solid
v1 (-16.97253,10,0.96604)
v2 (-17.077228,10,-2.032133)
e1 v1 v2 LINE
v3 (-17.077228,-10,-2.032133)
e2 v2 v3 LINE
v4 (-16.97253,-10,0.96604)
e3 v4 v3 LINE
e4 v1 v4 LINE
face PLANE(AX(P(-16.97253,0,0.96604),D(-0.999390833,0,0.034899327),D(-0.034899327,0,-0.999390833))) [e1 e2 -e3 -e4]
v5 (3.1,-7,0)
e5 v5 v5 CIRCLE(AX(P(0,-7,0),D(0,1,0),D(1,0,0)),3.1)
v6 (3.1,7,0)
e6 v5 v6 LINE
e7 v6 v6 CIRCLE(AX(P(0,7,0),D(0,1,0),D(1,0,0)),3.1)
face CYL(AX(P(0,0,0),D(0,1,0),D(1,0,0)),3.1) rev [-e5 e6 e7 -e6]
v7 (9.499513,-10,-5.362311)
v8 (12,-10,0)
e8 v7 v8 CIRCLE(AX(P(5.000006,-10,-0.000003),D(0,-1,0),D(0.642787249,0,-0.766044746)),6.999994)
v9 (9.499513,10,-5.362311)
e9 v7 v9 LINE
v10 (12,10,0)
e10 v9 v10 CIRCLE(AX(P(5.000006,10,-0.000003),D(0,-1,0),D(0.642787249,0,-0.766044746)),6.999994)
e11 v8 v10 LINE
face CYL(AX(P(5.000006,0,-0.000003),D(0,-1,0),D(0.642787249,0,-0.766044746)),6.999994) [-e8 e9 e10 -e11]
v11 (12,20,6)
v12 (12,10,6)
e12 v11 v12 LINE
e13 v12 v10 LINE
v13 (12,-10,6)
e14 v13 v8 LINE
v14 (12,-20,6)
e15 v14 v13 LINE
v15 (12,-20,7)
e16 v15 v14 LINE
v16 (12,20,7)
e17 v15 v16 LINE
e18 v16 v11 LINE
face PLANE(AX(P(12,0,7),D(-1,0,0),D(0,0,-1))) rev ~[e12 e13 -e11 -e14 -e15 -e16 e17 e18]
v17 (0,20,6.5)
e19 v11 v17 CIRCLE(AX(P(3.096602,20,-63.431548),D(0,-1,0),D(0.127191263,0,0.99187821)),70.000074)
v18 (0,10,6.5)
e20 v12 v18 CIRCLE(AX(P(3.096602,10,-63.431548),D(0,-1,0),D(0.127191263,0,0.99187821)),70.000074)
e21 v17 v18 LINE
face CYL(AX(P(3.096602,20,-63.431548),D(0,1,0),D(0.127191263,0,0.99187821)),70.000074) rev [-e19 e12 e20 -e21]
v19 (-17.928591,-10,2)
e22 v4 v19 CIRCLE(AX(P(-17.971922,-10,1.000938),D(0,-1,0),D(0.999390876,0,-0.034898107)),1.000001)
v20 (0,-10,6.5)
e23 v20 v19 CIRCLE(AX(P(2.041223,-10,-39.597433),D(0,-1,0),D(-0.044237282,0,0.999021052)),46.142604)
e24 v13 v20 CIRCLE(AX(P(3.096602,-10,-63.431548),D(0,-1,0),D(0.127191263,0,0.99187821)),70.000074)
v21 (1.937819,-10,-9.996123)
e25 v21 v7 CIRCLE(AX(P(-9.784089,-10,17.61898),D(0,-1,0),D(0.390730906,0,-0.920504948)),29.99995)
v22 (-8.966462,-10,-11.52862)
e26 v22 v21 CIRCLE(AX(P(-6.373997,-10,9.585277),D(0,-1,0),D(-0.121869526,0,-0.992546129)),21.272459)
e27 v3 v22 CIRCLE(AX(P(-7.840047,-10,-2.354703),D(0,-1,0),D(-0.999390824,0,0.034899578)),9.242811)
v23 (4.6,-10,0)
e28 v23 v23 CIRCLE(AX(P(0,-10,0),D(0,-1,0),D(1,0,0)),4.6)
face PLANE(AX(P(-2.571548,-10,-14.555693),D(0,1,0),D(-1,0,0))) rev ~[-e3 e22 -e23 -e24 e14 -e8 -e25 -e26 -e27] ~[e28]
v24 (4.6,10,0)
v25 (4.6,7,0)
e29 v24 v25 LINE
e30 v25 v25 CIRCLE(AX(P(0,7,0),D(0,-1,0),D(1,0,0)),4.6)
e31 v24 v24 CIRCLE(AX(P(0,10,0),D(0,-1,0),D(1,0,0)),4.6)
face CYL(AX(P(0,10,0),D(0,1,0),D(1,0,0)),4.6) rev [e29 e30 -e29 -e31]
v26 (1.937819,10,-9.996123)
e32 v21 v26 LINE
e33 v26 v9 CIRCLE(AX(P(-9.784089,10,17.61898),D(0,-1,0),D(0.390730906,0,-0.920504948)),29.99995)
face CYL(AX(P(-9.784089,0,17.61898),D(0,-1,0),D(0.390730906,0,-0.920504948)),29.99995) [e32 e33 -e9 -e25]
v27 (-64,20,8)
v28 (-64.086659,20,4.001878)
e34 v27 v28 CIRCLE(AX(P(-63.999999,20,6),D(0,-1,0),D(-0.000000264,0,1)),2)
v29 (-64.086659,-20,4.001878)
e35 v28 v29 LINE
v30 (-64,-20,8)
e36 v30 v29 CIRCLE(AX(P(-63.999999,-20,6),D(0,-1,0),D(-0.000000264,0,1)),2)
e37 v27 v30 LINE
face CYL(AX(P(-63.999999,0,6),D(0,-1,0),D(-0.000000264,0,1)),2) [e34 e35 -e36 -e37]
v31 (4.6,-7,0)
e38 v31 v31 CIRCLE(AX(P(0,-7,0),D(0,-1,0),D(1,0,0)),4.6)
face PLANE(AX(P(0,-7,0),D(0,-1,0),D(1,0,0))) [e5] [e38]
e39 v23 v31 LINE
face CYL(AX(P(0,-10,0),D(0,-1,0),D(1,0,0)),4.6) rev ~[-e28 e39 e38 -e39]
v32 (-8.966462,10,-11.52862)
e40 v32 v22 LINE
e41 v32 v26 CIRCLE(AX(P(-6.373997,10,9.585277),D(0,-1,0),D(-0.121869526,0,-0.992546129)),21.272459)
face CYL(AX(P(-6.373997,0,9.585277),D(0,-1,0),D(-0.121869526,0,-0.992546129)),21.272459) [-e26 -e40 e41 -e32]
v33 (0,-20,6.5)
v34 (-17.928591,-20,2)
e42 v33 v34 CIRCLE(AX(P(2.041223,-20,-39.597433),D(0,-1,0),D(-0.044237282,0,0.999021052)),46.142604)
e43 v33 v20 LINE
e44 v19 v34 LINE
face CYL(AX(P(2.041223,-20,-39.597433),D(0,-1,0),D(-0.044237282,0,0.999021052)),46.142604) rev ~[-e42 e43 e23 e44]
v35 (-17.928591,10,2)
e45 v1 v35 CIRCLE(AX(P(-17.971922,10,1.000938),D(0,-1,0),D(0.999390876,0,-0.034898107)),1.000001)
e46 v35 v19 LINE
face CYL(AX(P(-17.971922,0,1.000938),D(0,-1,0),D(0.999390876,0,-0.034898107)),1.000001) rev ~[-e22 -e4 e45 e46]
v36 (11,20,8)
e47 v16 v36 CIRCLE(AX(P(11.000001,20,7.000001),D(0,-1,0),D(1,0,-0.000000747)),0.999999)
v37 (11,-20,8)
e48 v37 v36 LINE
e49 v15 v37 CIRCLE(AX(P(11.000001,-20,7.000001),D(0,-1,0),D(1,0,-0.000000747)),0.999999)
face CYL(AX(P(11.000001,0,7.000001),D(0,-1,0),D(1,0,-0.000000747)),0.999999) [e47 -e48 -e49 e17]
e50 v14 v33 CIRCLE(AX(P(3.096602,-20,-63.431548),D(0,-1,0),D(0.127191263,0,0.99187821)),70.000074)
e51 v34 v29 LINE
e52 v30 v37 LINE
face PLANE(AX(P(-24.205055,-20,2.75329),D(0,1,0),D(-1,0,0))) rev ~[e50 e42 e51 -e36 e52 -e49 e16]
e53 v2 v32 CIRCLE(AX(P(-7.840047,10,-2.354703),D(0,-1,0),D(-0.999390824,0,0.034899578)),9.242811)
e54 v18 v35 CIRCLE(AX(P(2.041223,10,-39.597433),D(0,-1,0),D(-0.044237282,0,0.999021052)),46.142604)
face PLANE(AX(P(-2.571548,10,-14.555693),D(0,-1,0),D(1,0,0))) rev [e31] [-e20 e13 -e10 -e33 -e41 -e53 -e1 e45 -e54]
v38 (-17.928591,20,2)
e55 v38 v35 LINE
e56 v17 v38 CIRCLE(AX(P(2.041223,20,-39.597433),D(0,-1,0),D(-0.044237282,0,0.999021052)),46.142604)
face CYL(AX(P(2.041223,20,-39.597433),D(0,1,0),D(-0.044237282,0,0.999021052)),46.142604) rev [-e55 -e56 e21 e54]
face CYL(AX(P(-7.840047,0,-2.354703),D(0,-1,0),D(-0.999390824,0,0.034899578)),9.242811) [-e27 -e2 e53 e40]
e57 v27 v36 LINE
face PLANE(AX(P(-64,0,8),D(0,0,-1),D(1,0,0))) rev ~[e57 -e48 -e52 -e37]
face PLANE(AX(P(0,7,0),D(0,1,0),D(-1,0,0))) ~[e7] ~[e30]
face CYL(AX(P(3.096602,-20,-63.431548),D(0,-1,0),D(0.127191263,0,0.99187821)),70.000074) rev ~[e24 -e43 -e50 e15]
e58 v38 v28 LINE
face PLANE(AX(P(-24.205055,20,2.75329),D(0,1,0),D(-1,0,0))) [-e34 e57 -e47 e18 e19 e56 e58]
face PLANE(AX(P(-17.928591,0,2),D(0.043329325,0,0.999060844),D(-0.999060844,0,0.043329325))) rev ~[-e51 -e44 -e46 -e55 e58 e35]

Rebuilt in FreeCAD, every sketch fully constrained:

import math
import FreeCAD as App
import Part
import Sketcher

doc = App.newDocument("Part")
body = doc.addObject("PartDesign::Body", "Body")

# Sketch on XZ plane
sketch1 = body.newObject("Sketcher::SketchObject", "Sketch")
sketch1.AttachmentSupport = (doc.getObject("XZ_Plane"), [""])
sketch1.MapMode = "FlatFace"
sketch1.addGeometry([
    Part.LineSegment(App.Vector(11, 8, 0), App.Vector(-64, 8, 0)),  # 0
    Part.ArcOfCircle(Part.Circle(App.Vector(-63.999999, 6, 0), App.Vector(0, 0, 1), 2), math.radians(90.000015), math.radians(267.51661)),  # 1
    Part.LineSegment(App.Vector(-64.086659, 4.001878, 0), App.Vector(-17.928591, 2, 0)),  # 2
    Part.ArcOfCircle(Part.Circle(App.Vector(-17.971922, 1.000938, 0), App.Vector(0, 0, 1), 1.000001), math.radians(-1.99992), math.radians(87.516544)),  # 3
    Part.LineSegment(App.Vector(-16.97253, 0.96604, 0), App.Vector(-17.077228, -2.032133, 0)),  # 4
    Part.ArcOfCircle(Part.Circle(App.Vector(-7.840047, -2.354703, 0), App.Vector(0, 0, 1), 9.242811), math.radians(177.999995), math.radians(263.000004)),  # 5
    Part.ArcOfCircle(Part.Circle(App.Vector(-6.373997, 9.585277, 0), App.Vector(0, 0, 1), 21.272459), math.radians(-97.000011), math.radians(-66.999987)),  # 6
    Part.ArcOfCircle(Part.Circle(App.Vector(-9.784089, 17.61898, 0), App.Vector(0, 0, 1), 29.99995), math.radians(-67.000014), math.radians(-49.999987)),  # 7
    Part.ArcOfCircle(Part.Circle(App.Vector(5.000006, -0.000003, 0), App.Vector(0, 0, 1), 6.999994), math.radians(-50.000027), math.radians(0.000021)),  # 8
    Part.LineSegment(App.Vector(12, 0, 0), App.Vector(12, 7, 0)),  # 9
    Part.ArcOfCircle(Part.Circle(App.Vector(11.000001, 7.000001, 0), App.Vector(0, 0, 1), 0.999999), math.radians(-0.000043), math.radians(90.000043)),  # 10
    Part.Circle(App.Vector(0, 0, 0), App.Vector(0, 0, 1), 3.1),  # 11
], False)
sketch1.addConstraint([
    Sketcher.Constraint("Coincident", 0, 2, 1, 1),
    Sketcher.Constraint("Coincident", 1, 2, 2, 1),
    Sketcher.Constraint("Coincident", 2, 2, 3, 2),
    Sketcher.Constraint("Coincident", 3, 1, 4, 1),
    Sketcher.Constraint("Coincident", 4, 2, 5, 1),
    Sketcher.Constraint("Coincident", 5, 2, 6, 1),
    Sketcher.Constraint("Coincident", 6, 2, 7, 1),
    Sketcher.Constraint("Coincident", 7, 2, 8, 1),
    Sketcher.Constraint("Coincident", 8, 2, 9, 1),
    Sketcher.Constraint("Coincident", 9, 2, 10, 1),
    Sketcher.Constraint("Coincident", 10, 2, 0, 1),
    Sketcher.Constraint("Horizontal", 0),
    Sketcher.Constraint("Vertical", 9),
    Sketcher.Constraint("Coincident", 11, 3, -1, 1),
    Sketcher.Constraint("PointOnObject", 8, 2, -1),
    Sketcher.Constraint("Radius", 1, 2.0),
    Sketcher.Constraint("Radius", 3, 1.000001),
    Sketcher.Constraint("Radius", 10, 0.999999),
    Sketcher.Constraint("Diameter", 11, 6.2),
    Sketcher.Constraint("DistanceX", 0, 2, 0, 1, 75.0),
    Sketcher.Constraint("DistanceY", 9, 1, 9, 2, 7.0),
    Sketcher.Constraint("Distance", 4, 3.000001),
    Sketcher.Constraint("DistanceX", 1, 3, -1, 1, 63.999999),
    Sketcher.Constraint("DistanceY", -1, 1, 1, 3, 6.0),
    Sketcher.Constraint("DistanceX", -1, 1, 10, 3, 11.000001),
    Sketcher.Constraint("DistanceX", 0, 2, -1, 1, 64.0),
    Sketcher.Constraint("DistanceY", -1, 1, 2, 2, 2.0),
    Sketcher.Constraint("Radius", 5, 9.242811),
    Sketcher.Constraint("Radius", 6, 21.272459),
    Sketcher.Constraint("Radius", 7, 29.99995),
    Sketcher.Constraint("Radius", 8, 6.999994),
    Sketcher.Constraint("DistanceX", 1, 3, 6, 3, 57.626002),
    Sketcher.Constraint("DistanceY", 5, 3, 8, 3, 2.354701),
    Sketcher.Constraint("DistanceY", 1, 2, 7, 3, 13.617102),
    Sketcher.Constraint("DistanceY", 3, 1, 3, 3, 0.034898),
    Sketcher.Constraint("DistanceX", 4, 2, 3, 1, 0.104698),
    Sketcher.Constraint("Distance", 2, 46.201458),
    Sketcher.Constraint("DistanceX", 3, 3, -1, 1, 17.971922),
    Sketcher.Constraint("DistanceY", -1, 1, 3, 3, 1.000938),
    Sketcher.Constraint("DistanceX", 5, 2, -1, 1, 8.966462),
    Sketcher.Constraint("DistanceX", -1, 1, 6, 2, 1.937819),
    Sketcher.Constraint("DistanceY", 7, 2, -1, 1, 5.362311),
])
pad1 = body.newObject("PartDesign::Pad", "Pad")
pad1.Profile = sketch1
pad1.Length = 40
pad1.Midplane = True

# Sketch on XZ plane
sketch2 = body.newObject("Sketcher::SketchObject", "Sketch001")
sketch2.AttachmentSupport = (doc.getObject("XZ_Plane"), [""])
sketch2.MapMode = "FlatFace"
sketch2.AttachmentOffset = App.Placement(App.Vector(0, 0, 20), App.Rotation())
sketch2.addGeometry([
    Part.LineSegment(App.Vector(12, -34, 0), App.Vector(12, 6, 0)),  # 0
    Part.ArcOfCircle(Part.Circle(App.Vector(3.096602, -63.431548, 0), App.Vector(0, 0, 1), 70.000074), math.radians(82.692684), math.radians(92.535428)),  # 1
    Part.ArcOfCircle(Part.Circle(App.Vector(2.041223, -39.597433, 0), App.Vector(0, 0, 1), 46.142604), math.radians(92.535437), math.radians(115.644416)),  # 2
    Part.LineSegment(App.Vector(-17.928591, 2, 0), App.Vector(-17.928591, -34, 0)),  # 3
    Part.LineSegment(App.Vector(-17.928591, -34, 0), App.Vector(12, -34, 0)),  # 4
], False)
sketch2.addConstraint([
    Sketcher.Constraint("Coincident", 0, 2, 1, 1),
    Sketcher.Constraint("Tangent", 1, 2, 2, 1),
    Sketcher.Constraint("Coincident", 2, 2, 3, 1),
    Sketcher.Constraint("Coincident", 3, 2, 4, 1),
    Sketcher.Constraint("Coincident", 4, 2, 0, 1),
    Sketcher.Constraint("Vertical", 0),
    Sketcher.Constraint("Vertical", 3),
    Sketcher.Constraint("Horizontal", 4),
    Sketcher.Constraint("PointOnObject", 1, 2, -2),
    Sketcher.Constraint("DistanceY", 0, 1, 0, 2, 40.0),
    Sketcher.Constraint("DistanceY", 3, 2, 3, 1, 36.0),
    Sketcher.Constraint("DistanceX", -1, 1, 0, 2, 12.0),
    Sketcher.Constraint("DistanceY", -1, 1, 0, 2, 6.0),
    Sketcher.Constraint("DistanceY", -1, 1, 1, 2, 6.5),
    Sketcher.Constraint("Radius", 1, 70.000074),
    Sketcher.Constraint("Radius", 2, 46.142604),
])
pocket1 = body.newObject("PartDesign::Pocket", "Pocket")
pocket1.Profile = sketch2
pocket1.Length = 10

# Sketch on XZ plane
sketch3 = body.newObject("Sketcher::SketchObject", "Sketch002")
sketch3.AttachmentSupport = (doc.getObject("XZ_Plane"), [""])
sketch3.MapMode = "FlatFace"
sketch3.AttachmentOffset = App.Placement(App.Vector(0, 0, 10), App.Rotation())
sketch3.addGeometry(Part.Circle(App.Vector(0, 0, 0), App.Vector(0, 0, 1), 4.6), False)
sketch3.addConstraint([
    Sketcher.Constraint("Coincident", 0, 3, -1, 1),
    Sketcher.Constraint("Diameter", 0, 9.2),
])
pocket2 = body.newObject("PartDesign::Pocket", "Pocket001")
pocket2.Profile = sketch3
pocket2.Length = 3
doc.recompute()

mirrored = body.newObject("PartDesign::Mirrored", "Mirrored")
mirrored.Originals = [pocket2, pocket1]
mirrored.MirrorPlane = (doc.getObject("XZ_Plane"), [""])
body.Tip = mirrored

doc.recompute()
